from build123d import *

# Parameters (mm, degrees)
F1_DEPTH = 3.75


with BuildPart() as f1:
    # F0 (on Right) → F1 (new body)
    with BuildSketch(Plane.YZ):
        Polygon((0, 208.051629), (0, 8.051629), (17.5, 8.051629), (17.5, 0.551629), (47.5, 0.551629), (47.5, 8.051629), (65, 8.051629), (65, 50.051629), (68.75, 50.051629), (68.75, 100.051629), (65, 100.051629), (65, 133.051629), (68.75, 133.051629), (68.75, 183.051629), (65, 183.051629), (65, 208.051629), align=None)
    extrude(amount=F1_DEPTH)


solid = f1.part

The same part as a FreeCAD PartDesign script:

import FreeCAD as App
import Part
import Sketcher
from FreeCAD import Vector

doc = App.newDocument("Part")
body = doc.addObject("PartDesign::Body", "Body")

sketch1 = doc.addObject("Sketcher::SketchObject", "Sketch")
body.addObject(sketch1)
sketch1.AttachmentSupport = (doc.YZ_Plane, [""])
sketch1.MapMode = "FlatFace"
sketch1.addGeometry([
    Part.LineSegment(Vector(0, 208.051629, 0), Vector(0, 8.051629, 0)),
    Part.LineSegment(Vector(0, 8.051629, 0), Vector(17.5, 8.051629, 0)),
    Part.LineSegment(Vector(17.5, 8.051629, 0), Vector(17.5, 0.551629, 0)),
    Part.LineSegment(Vector(17.5, 0.551629, 0), Vector(47.5, 0.551629, 0)),
    Part.LineSegment(Vector(47.5, 0.551629, 0), Vector(47.5, 8.051629, 0)),
    Part.LineSegment(Vector(47.5, 8.051629, 0), Vector(65, 8.051629, 0)),
    Part.LineSegment(Vector(65, 8.051629, 0), Vector(65, 50.051629, 0)),
    Part.LineSegment(Vector(65, 50.051629, 0), Vector(68.75, 50.051629, 0)),
    Part.LineSegment(Vector(68.75, 50.051629, 0), Vector(68.75, 100.051629, 0)),
    Part.LineSegment(Vector(68.75, 100.051629, 0), Vector(65, 100.051629, 0)),
    Part.LineSegment(Vector(65, 100.051629, 0), Vector(65, 133.051629, 0)),
    Part.LineSegment(Vector(65, 133.051629, 0), Vector(68.75, 133.051629, 0)),
    Part.LineSegment(Vector(68.75, 133.051629, 0), Vector(68.75, 183.051629, 0)),
    Part.LineSegment(Vector(68.75, 183.051629, 0), Vector(65, 183.051629, 0)),
    Part.LineSegment(Vector(65, 183.051629, 0), Vector(65, 208.051629, 0)),
    Part.LineSegment(Vector(65, 208.051629, 0), Vector(0, 208.051629, 0)),
], False)
sketch1.addConstraint([
    Sketcher.Constraint("Coincident", 0, 2, 1, 1),
    Sketcher.Constraint("Coincident", 1, 2, 2, 1),
    Sketcher.Constraint("Coincident", 2, 2, 3, 1),
    Sketcher.Constraint("Coincident", 3, 2, 4, 1),
    Sketcher.Constraint("Coincident", 4, 2, 5, 1),
    Sketcher.Constraint("Coincident", 5, 2, 6, 1),
    Sketcher.Constraint("Coincident", 6, 2, 7, 1),
    Sketcher.Constraint("Coincident", 7, 2, 8, 1),
    Sketcher.Constraint("Coincident", 8, 2, 9, 1),
    Sketcher.Constraint("Coincident", 9, 2, 10, 1),
    Sketcher.Constraint("Coincident", 10, 2, 11, 1),
    Sketcher.Constraint("Coincident", 11, 2, 12, 1),
    Sketcher.Constraint("Coincident", 12, 2, 13, 1),
    Sketcher.Constraint("Coincident", 13, 2, 14, 1),
    Sketcher.Constraint("Coincident", 14, 2, 15, 1),
    Sketcher.Constraint("Coincident", 15, 2, 0, 1),
    Sketcher.Constraint("Vertical", 0),
    Sketcher.Constraint("Horizontal", 1),
    Sketcher.Constraint("Vertical", 2),
    Sketcher.Constraint("Horizontal", 3),
    Sketcher.Constraint("Vertical", 4),
    Sketcher.Constraint("Horizontal", 5),
    Sketcher.Constraint("Vertical", 6),
    Sketcher.Constraint("Horizontal", 7),
    Sketcher.Constraint("Vertical", 8),
    Sketcher.Constraint("Horizontal", 9),
    Sketcher.Constraint("Vertical", 10),
    Sketcher.Constraint("Horizontal", 11),
    Sketcher.Constraint("Vertical", 12),
    Sketcher.Constraint("Horizontal", 13),
    Sketcher.Constraint("Vertical", 14),
    Sketcher.Constraint("Horizontal", 15),
    Sketcher.Constraint("PointOnObject", 0, 2, -2),
    Sketcher.Constraint("Horizontal", 1, 2, 4, 2),
    Sketcher.Constraint("Vertical", 6, 2, 9, 2),
    Sketcher.Constraint("Vertical", 8, 2, 11, 2),
    Sketcher.Constraint("Vertical", 10, 2, 13, 2),
    Sketcher.Constraint("Equal", 1, 5),
    Sketcher.Constraint("Equal", 8, 12),
    Sketcher.Constraint("DistanceX", 3, 1, 3, 2, 30.0),
    Sketcher.Constraint("DistanceX", 15, 2, 15, 1, 65.0),
    Sketcher.Constraint("DistanceY", 0, 2, 0, 1, 200.0),
    Sketcher.Constraint("DistanceY", 6, 1, 6, 2, 42.0),
    Sketcher.Constraint("DistanceY", 8, 1, 8, 2, 50.0),
    Sketcher.Constraint("DistanceY", 10, 1, 10, 2, 33.0),
    Sketcher.Constraint("DistanceY", 2, 2, 2, 1, 7.5),
    Sketcher.Constraint("DistanceX", 7, 1, 7, 2, 3.75),
    Sketcher.Constraint("DistanceY", -1, 1, 0, 2, 8.051629),
])
pad1 = doc.addObject("PartDesign::Pad", "Pad")
body.addObject(pad1)
pad1.Profile = sketch1
pad1.Length = 3.75

doc.recompute()
